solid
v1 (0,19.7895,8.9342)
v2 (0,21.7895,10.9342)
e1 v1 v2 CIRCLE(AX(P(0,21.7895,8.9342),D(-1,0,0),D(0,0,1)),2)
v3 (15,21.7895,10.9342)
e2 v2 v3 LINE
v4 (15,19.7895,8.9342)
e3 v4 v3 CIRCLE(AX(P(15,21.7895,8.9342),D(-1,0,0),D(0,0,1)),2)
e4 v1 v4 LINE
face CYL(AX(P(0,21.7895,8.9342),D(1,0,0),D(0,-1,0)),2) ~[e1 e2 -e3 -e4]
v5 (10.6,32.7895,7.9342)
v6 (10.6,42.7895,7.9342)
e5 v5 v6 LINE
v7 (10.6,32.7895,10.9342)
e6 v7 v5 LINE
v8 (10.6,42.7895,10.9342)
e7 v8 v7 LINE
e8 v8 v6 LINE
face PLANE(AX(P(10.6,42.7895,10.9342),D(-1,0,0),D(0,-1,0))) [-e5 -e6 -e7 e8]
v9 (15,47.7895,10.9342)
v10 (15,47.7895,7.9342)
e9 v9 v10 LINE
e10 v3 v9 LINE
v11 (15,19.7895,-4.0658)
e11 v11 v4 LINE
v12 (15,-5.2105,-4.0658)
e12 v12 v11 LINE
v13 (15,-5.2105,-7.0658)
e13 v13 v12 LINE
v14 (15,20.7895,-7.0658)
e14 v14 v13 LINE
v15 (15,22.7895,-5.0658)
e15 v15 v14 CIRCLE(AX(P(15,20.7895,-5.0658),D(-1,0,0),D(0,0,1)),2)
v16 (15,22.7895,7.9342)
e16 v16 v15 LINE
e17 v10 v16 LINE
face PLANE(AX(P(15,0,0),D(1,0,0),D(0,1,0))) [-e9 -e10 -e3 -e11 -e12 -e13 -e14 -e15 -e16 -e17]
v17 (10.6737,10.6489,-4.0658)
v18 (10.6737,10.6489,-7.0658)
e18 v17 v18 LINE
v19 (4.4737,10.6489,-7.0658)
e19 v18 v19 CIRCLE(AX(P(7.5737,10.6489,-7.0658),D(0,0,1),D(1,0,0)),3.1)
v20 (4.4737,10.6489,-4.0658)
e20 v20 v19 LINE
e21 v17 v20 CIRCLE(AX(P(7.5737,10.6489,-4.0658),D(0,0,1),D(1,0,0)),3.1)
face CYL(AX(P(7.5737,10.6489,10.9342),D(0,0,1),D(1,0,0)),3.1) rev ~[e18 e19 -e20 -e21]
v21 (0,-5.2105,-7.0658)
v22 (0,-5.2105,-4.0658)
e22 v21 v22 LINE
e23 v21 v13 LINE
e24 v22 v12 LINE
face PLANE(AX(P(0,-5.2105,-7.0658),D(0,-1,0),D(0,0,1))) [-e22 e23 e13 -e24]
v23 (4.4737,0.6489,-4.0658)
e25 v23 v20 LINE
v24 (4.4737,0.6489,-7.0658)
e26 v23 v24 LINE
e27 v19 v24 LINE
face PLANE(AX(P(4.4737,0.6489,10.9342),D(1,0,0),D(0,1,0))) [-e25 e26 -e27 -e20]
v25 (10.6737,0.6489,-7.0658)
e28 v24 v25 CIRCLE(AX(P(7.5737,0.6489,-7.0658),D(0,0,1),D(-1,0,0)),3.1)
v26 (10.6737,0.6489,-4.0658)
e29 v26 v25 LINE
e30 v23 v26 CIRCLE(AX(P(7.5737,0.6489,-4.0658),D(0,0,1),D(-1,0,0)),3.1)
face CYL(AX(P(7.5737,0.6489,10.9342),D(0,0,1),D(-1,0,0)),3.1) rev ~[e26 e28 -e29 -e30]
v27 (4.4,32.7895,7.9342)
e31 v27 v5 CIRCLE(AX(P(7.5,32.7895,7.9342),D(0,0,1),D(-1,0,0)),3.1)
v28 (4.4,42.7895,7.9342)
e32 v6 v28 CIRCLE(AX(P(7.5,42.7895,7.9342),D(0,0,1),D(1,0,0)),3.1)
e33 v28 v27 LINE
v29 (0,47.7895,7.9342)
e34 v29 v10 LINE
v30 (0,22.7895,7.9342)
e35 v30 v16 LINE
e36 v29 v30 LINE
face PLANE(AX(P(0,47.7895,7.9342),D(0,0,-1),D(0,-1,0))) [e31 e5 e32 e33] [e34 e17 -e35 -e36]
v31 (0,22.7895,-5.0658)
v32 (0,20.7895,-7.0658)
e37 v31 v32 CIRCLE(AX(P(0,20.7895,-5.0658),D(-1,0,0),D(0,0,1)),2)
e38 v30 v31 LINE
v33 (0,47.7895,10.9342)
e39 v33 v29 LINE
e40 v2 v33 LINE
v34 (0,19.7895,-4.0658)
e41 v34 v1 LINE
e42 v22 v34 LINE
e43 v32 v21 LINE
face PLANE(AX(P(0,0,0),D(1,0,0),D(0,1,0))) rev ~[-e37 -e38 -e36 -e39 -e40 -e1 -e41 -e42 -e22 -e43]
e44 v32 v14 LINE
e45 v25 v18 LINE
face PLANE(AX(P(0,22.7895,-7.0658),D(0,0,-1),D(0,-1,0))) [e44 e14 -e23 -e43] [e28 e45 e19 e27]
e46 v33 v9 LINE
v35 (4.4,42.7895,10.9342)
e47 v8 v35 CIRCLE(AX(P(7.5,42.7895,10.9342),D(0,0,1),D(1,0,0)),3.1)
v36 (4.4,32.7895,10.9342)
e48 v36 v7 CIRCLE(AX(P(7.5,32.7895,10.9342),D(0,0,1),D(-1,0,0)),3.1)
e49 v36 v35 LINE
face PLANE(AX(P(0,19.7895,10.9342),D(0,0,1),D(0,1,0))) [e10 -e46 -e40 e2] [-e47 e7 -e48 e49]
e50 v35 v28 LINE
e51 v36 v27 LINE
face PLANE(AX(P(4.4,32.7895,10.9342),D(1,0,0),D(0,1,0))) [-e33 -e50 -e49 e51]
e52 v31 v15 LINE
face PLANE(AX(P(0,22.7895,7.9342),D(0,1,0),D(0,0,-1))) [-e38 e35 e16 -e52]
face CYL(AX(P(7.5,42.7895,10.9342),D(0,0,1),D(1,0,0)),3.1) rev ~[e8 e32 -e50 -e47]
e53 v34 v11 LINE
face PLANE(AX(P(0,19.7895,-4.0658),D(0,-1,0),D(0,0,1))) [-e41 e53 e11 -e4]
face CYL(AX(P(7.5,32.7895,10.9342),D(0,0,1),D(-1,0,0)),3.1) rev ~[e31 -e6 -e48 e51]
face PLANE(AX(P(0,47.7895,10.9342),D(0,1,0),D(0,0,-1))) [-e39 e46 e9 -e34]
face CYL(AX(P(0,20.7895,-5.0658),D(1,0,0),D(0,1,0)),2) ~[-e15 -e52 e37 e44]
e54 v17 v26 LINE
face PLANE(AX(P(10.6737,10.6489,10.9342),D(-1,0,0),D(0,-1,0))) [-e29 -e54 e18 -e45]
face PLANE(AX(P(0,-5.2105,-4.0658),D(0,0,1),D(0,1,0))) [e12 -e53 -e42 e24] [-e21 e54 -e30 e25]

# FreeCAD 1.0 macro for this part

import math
import FreeCAD as App
import Part
import Sketcher


def edges_at(feature, points):
    """Names of the edges that pass closest to the given points."""
    edges = feature.Shape.Edges
    near = lambda p: min(range(len(edges)), key=lambda i: edges[i].distToShape(Part.Vertex(*p))[0])
    return sorted({f"Edge{near(p) + 1}" for p in points})

doc = App.newDocument("Part")
params = doc.addObject("Spreadsheet::Sheet", "Params")
for row, (alias, value) in enumerate([
    ("sketch1_width", "25 mm"),
    ("sketch1_height", "3 mm"),
    ("sketch1_height2", "15 mm"),
    ("pad1_length", "15 mm"),
    ("fillet_radius", "2 mm"),
    ("sketch2_radius", "3.1 mm"),
    ("sketch2_height", "10 mm"),
    ("pocket1_length", "20 mm"),
], start=1):
    params.set(f"A{row}", alias)
    params.set(f"B{row}", "=" + value)
    params.setAlias(f"B{row}", alias)

body = doc.addObject("PartDesign::Body", "Body")

# Sketch on YZ plane
sketch1 = body.newObject("Sketcher::SketchObject", "Sketch")
sketch1.AttachmentSupport = (doc.getObject("YZ_Plane"), [""])
sketch1.MapMode = "FlatFace"
sketch1.addGeometry([
    Part.LineSegment(App.Vector(22.8, 7.9, 0), App.Vector(47.8, 7.9, 0)),  # 0
    Part.LineSegment(App.Vector(47.8, 7.9, 0), App.Vector(47.8, 10.9, 0)),  # 1
    Part.LineSegment(App.Vector(47.8, 10.9, 0), App.Vector(19.8, 10.9, 0)),  # 2
    Part.LineSegment(App.Vector(19.8, 10.9, 0), App.Vector(19.8, -4.1, 0)),  # 3
    Part.LineSegment(App.Vector(19.8, -4.1, 0), App.Vector(-5.2, -4.1, 0)),  # 4
    Part.LineSegment(App.Vector(-5.2, -4.1, 0), App.Vector(-5.2, -7.1, 0)),  # 5
    Part.LineSegment(App.Vector(-5.2, -7.1, 0), App.Vector(22.8, -7.1, 0)),  # 6
    Part.LineSegment(App.Vector(22.8, -7.1, 0), App.Vector(22.8, 7.9, 0)),  # 7
], False)
sketch1.addConstraint([
    Sketcher.Constraint("Coincident", 0, 2, 1, 1),
    Sketcher.Constraint("Coincident", 1, 2, 2, 1),
    Sketcher.Constraint("Coincident", 2, 2, 3, 1),
    Sketcher.Constraint("Coincident", 3, 2, 4, 1),
    Sketcher.Constraint("Coincident", 4, 2, 5, 1),
    Sketcher.Constraint("Coincident", 5, 2, 6, 1),
    Sketcher.Constraint("Coincident", 6, 2, 7, 1),
    Sketcher.Constraint("Coincident", 7, 2, 0, 1),
    Sketcher.Constraint("Horizontal", 0),
    Sketcher.Constraint("Vertical", 1),
    Sketcher.Constraint("Horizontal", 2),
    Sketcher.Constraint("Vertical", 3),
    Sketcher.Constraint("Horizontal", 4),
    Sketcher.Constraint("Vertical", 5),
    Sketcher.Constraint("Horizontal", 6),
    Sketcher.Constraint("Vertical", 7),
    Sketcher.Constraint("Equal", 0, 4),
    Sketcher.Constraint("Equal", 1, 5),
    Sketcher.Constraint("DistanceX", 0, 1, 0, 2, 25.0),
    Sketcher.Constraint("DistanceY", 1, 1, 1, 2, 3.0),
    Sketcher.Constraint("DistanceY", 3, 2, 3, 1, 15.0),
    Sketcher.Constraint("DistanceX", 3, 2, 6, 2, 3.0),
    Sketcher.Constraint("DistanceX", -1, 1, 0, 2, 47.7895),
    Sketcher.Constraint("DistanceY", -1, 1, 0, 2, 7.9342),
])
sketch1.setExpression("Constraints[18]", "Params.sketch1_width")
sketch1.setExpression("Constraints[19]", "Params.sketch1_height")
sketch1.setExpression("Constraints[20]", "Params.sketch1_height2")
pad1 = body.newObject("PartDesign::Pad", "Pad")
pad1.Profile = sketch1
pad1.setExpression("Length", "Params.pad1_length")
doc.recompute()

fillet = body.newObject("PartDesign::Fillet", "Fillet")
fillet.Base = (pad1, edges_at(pad1, [(7.5, 22.79, -7.066), (7.5, 19.79, 10.934)]))
fillet.setExpression("Radius", "Params.fillet_radius")

# Sketch on XY plane
sketch2 = body.newObject("Sketcher::SketchObject", "Sketch001")
sketch2.AttachmentSupport = (doc.getObject("XY_Plane"), [""])
sketch2.MapMode = "FlatFace"
sketch2.AttachmentOffset = App.Placement(App.Vector(0, 0, 10.9342), App.Rotation())
sketch2.addGeometry([
    Part.LineSegment(App.Vector(10.6, 32.8, 0), App.Vector(10.6, 42.8, 0)),  # 0
    Part.ArcOfCircle(Part.Circle(App.Vector(7.5, 42.8, 0), App.Vector(0, 0, 1), 3.1), math.radians(0), math.radians(180)),  # 1
    Part.LineSegment(App.Vector(4.4, 42.8, 0), App.Vector(4.4, 32.8, 0)),  # 2
    Part.ArcOfCircle(Part.Circle(App.Vector(7.5, 32.8, 0), App.Vector(0, 0, 1), 3.1), math.radians(180), math.radians(360)),  # 3
    Part.LineSegment(App.Vector(10.7, 0.6, 0), App.Vector(10.7, 10.6, 0)),  # 4
    Part.ArcOfCircle(Part.Circle(App.Vector(7.6, 10.6, 0), App.Vector(0, 0, 1), 3.1), math.radians(0), math.radians(180)),  # 5
    Part.LineSegment(App.Vector(4.5, 10.6, 0), App.Vector(4.5, 0.6, 0)),  # 6
    Part.ArcOfCircle(Part.Circle(App.Vector(7.6, 0.6, 0), App.Vector(0, 0, 1), 3.1), math.radians(180), math.radians(360)),  # 7
], False)
sketch2.addConstraint([
    Sketcher.Constraint("Tangent", 0, 2, 1, 1),
    Sketcher.Constraint("Tangent", 1, 2, 2, 1),
    Sketcher.Constraint("Tangent", 2, 2, 3, 1),
    Sketcher.Constraint("Tangent", 3, 2, 0, 1),
    Sketcher.Constraint("Tangent", 4, 2, 5, 1),
    Sketcher.Constraint("Tangent", 5, 2, 6, 1),
    Sketcher.Constraint("Tangent", 6, 2, 7, 1),
    Sketcher.Constraint("Tangent", 7, 2, 4, 1),
    Sketcher.Constraint("Vertical", 0),
    Sketcher.Constraint("Vertical", 2),
    Sketcher.Constraint("Vertical", 4),
    Sketcher.Constraint("Vertical", 6),
    Sketcher.Constraint("Equal", 3, 5),
    Sketcher.Constraint("Equal", 2, 4),
    Sketcher.Constraint("Radius", 1, 3.1),
    Sketcher.Constraint("DistanceY", 0, 1, 0, 2, 10.0),
    Sketcher.Constraint("DistanceX", -1, 1, 1, 3, 7.5),
    Sketcher.Constraint("DistanceY", -1, 1, 5, 3, 10.649),
    Sketcher.Constraint("DistanceY", -1, 1, 1, 3, 42.7895),
    Sketcher.Constraint("DistanceX", -1, 1, 5, 3, 7.5737),
])
sketch2.setExpression("Constraints[14]", "Params.sketch2_radius")
sketch2.setExpression("Constraints[15]", "Params.sketch2_height")
pocket1 = body.newObject("PartDesign::Pocket", "Pocket")
pocket1.Profile = sketch2
pocket1.setExpression("Length", "Params.pocket1_length")

doc.recompute()
